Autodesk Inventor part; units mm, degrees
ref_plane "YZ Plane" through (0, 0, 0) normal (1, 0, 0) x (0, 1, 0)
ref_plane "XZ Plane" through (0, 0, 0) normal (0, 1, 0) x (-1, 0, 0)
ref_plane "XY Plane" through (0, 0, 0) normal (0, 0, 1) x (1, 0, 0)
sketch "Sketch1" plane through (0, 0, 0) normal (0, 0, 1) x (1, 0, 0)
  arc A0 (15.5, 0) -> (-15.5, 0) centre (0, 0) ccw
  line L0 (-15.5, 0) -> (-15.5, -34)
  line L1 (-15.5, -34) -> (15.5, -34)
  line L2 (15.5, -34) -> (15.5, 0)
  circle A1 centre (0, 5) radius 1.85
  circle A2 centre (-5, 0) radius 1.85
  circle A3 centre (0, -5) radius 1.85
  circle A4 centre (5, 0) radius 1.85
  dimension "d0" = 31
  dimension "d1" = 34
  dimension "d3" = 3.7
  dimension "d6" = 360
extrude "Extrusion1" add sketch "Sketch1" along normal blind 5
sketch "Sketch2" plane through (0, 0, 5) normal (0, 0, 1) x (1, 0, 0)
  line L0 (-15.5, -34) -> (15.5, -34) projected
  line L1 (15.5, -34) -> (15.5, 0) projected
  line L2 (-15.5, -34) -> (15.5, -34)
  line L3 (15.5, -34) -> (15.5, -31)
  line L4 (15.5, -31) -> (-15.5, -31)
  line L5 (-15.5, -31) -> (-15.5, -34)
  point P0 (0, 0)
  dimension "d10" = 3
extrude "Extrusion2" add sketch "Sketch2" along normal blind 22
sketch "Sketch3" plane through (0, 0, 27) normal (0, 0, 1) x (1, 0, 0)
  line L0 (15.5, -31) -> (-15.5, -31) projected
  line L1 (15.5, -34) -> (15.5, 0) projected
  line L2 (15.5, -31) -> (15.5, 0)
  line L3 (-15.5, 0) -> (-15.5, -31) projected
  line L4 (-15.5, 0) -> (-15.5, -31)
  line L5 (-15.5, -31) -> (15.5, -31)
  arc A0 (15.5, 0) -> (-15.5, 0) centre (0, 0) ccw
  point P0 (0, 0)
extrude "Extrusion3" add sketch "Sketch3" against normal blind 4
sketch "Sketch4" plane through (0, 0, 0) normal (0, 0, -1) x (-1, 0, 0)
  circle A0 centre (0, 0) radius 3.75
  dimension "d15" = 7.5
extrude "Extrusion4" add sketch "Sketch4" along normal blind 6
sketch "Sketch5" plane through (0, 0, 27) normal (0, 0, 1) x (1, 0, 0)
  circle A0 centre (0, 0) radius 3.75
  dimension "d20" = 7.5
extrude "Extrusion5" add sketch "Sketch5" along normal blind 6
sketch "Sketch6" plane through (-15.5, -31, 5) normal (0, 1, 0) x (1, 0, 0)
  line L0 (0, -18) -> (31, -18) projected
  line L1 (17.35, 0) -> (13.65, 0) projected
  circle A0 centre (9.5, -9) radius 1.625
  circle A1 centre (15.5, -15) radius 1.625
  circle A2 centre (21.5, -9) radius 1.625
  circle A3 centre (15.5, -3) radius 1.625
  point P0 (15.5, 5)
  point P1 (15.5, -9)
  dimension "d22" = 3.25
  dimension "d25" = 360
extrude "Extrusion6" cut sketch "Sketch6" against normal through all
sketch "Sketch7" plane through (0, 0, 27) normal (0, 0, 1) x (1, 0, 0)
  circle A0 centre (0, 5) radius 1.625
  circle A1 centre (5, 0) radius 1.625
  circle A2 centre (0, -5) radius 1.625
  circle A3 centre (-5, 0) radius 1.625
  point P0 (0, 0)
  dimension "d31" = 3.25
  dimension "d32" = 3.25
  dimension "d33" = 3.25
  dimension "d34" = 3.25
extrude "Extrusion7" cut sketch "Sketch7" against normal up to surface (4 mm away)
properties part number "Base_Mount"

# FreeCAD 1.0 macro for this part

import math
import FreeCAD as App
import Part
import Sketcher
from FreeCAD import Vector


def add_polygon(sketch, points):
    """Adds a closed chain of lines whose ends are joined by coincident constraints."""
    first, n = sketch.GeometryCount, len(points)
    for a, b in zip(points, points[1:] + points[:1]):
        sketch.addGeometry(Part.LineSegment(App.Vector(*a, 0), App.Vector(*b, 0)), False)
    for i in range(n):
        sketch.addConstraint(Sketcher.Constraint("Coincident", first + i, 2, first + (i + 1) % n, 1))

doc = App.newDocument("Part")
params = doc.addObject("Spreadsheet::Sheet", "Params")
for row, (alias, value) in enumerate([
    ("sketch1_diameter", "3.7 mm"),
    ("sketch1_radius", "15.5 mm"),
    ("sketch1_height", "34 mm"),
    ("pad1_length", "5 mm"),
    ("sketch2_height", "3 mm"),
    ("sketch2_width", "31 mm"),
    ("pad2_length", "22 mm"),
    ("sketch3_radius", "15.5 mm"),
    ("pad3_length", "4 mm"),
    ("sketch4_diameter", "7.5 mm"),
    ("pad4_length", "6 mm"),
    ("sketch5_diameter", "7.5 mm"),
    ("pad5_length", "6 mm"),
    ("sketch6_diameter", "3.25 mm"),
    ("sketch7_diameter", "3.25 mm"),
    ("pocket2_length", "4 mm"),
], start=1):
    params.set(f"A{row}", alias)
    params.set(f"B{row}", "=" + value)
    params.setAlias(f"B{row}", alias)

body = doc.addObject("PartDesign::Body", "Body")

# Sketch on XY plane
sketch1 = body.newObject("Sketcher::SketchObject", "Sketch")
sketch1.AttachmentSupport = (doc.getObject("XY_Plane"), [""])
sketch1.MapMode = "FlatFace"
sketch1.addGeometry([
    Part.LineSegment(Vector(15.5, -34, 0), Vector(15.5, 0, 0)),  # 0
    Part.ArcOfCircle(Part.Circle(Vector(0, 0, 0), Vector(0, 0, 1), 15.5), math.radians(0), math.radians(180)),  # 1
    Part.LineSegment(Vector(-15.5, 0, 0), Vector(-15.5, -34, 0)),  # 2
    Part.LineSegment(Vector(-15.5, -34, 0), Vector(15.5, -34, 0)),  # 3
    Part.Circle(Vector(-5, 0, 0), Vector(0, 0, 1), 1.85),  # 4
    Part.Circle(Vector(0, -5, 0), Vector(0, 0, 1), 1.85),  # 5
    Part.Circle(Vector(5, 0, 0), Vector(0, 0, 1), 1.85),  # 6
    Part.Circle(Vector(0, 5, 0), Vector(0, 0, 1), 1.85),  # 7
], False)
sketch1.addConstraint([
    Sketcher.Constraint("Tangent", 0, 2, 1, 1),
    Sketcher.Constraint("Tangent", 1, 2, 2, 1),
    Sketcher.Constraint("Coincident", 2, 2, 3, 1),
    Sketcher.Constraint("Coincident", 3, 2, 0, 1),
    Sketcher.Constraint("Vertical", 0),
    Sketcher.Constraint("Vertical", 2),
    Sketcher.Constraint("Horizontal", 3),
    Sketcher.Constraint("Coincident", 1, 3, -1, 1),
    Sketcher.Constraint("Equal", 4, 5),
    Sketcher.Constraint("Equal", 5, 6),
    Sketcher.Constraint("Equal", 6, 7),
    Sketcher.Constraint("Symmetric", 4, 3, 6, 3, -1, 1),
    Sketcher.Constraint("Symmetric", 5, 3, 7, 3, -1, 1),
    Sketcher.Constraint("PointOnObject", 4, 3, -1),
    Sketcher.Constraint("PointOnObject", 5, 3, -2),
    Sketcher.Constraint("Diameter", 4, 3.7),
    Sketcher.Constraint("Radius", 1, 15.5),
    Sketcher.Constraint("DistanceY", 0, 1, 0, 2, 34.0),
    Sketcher.Constraint("DistanceX", 4, 3, -1, 1, 5.0),
    Sketcher.Constraint("DistanceY", 5, 3, -1, 1, 5.0),
])
sketch1.setExpression("Constraints[15]", "Params.sketch1_diameter")
sketch1.setExpression("Constraints[16]", "Params.sketch1_radius")
sketch1.setExpression("Constraints[17]", "Params.sketch1_height")
pad1 = body.newObject("PartDesign::Pad", "Pad")
pad1.Profile = sketch1
pad1.setExpression("Length", "Params.pad1_length")

# Sketch on XY plane
sketch2 = body.newObject("Sketcher::SketchObject", "Sketch001")
sketch2.AttachmentSupport = (doc.getObject("XY_Plane"), [""])
sketch2.MapMode = "FlatFace"
sketch2.AttachmentOffset = App.Placement(Vector(0, 0, 5), App.Rotation())
add_polygon(sketch2, [(-15.5, -31), (-15.5, -34), (15.5, -34), (15.5, -31)])  # lines 0-3
sketch2.addConstraint([
    Sketcher.Constraint("Vertical", 0),
    Sketcher.Constraint("Horizontal", 1),
    Sketcher.Constraint("Vertical", 2),
    Sketcher.Constraint("Horizontal", 3),
    Sketcher.Constraint("DistanceY", 0, 2, 0, 1, 3.0),
    Sketcher.Constraint("DistanceX", 1, 1, 1, 2, 31.0),
    Sketcher.Constraint("DistanceY", 0, 2, -1, 1, 34.0),
    Sketcher.Constraint("DistanceX", 0, 2, -1, 1, 15.5),
])
sketch2.setExpression("Constraints[8]", "Params.sketch2_height")
sketch2.setExpression("Constraints[9]", "Params.sketch2_width")
pad2 = body.newObject("PartDesign::Pad", "Pad001")
pad2.Profile = sketch2
pad2.setExpression("Length", "Params.pad2_length")

# Sketch on XY plane
sketch3 = body.newObject("Sketcher::SketchObject", "Sketch002")
sketch3.AttachmentSupport = (doc.getObject("XY_Plane"), [""])
sketch3.MapMode = "FlatFace"
sketch3.AttachmentOffset = App.Placement(Vector(0, 0, 27), App.Rotation())
sketch3.addGeometry([
    Part.LineSegment(Vector(-15.5, -31, 0), Vector(15.5, -31, 0)),
    Part.LineSegment(Vector(15.5, -31, 0), Vector(15.5, 0, 0)),
    Part.ArcOfCircle(Part.Circle(Vector(0, 0, 0), Vector(0, 0, 1), 15.5), math.radians(0), math.radians(180)),
    Part.LineSegment(Vector(-15.5, 0, 0), Vector(-15.5, -31, 0)),
], False)
sketch3.addConstraint([
    Sketcher.Constraint("Coincident", 0, 2, 1, 1),
    Sketcher.Constraint("Tangent", 1, 2, 2, 1),
    Sketcher.Constraint("Tangent", 2, 2, 3, 1),
    Sketcher.Constraint("Coincident", 3, 2, 0, 1),
    Sketcher.Constraint("Horizontal", 0),
    Sketcher.Constraint("Vertical", 1),
    Sketcher.Constraint("Vertical", 3),
    Sketcher.Constraint("Coincident", 2, 3, -1, 1),
    Sketcher.Constraint("Equal", 0, 1),
    Sketcher.Constraint("Radius", 2, 15.5),
])
sketch3.setExpression("Constraints[9]", "Params.sketch3_radius")
pad3 = body.newObject("PartDesign::Pad", "Pad002")
pad3.Profile = sketch3
pad3.setExpression("Length", "Params.pad3_length")
pad3.Reversed = True

# Sketch on XY plane
sketch4 = body.newObject("Sketcher::SketchObject", "Sketch003")
sketch4.AttachmentSupport = (doc.getObject("XY_Plane"), [""])
sketch4.MapMode = "FlatFace"
sketch4.addGeometry(Part.Circle(Vector(0, 0, 0), Vector(0, 0, 1), 3.75), False)
sketch4.addConstraint([
    Sketcher.Constraint("Coincident", 0, 3, -1, 1),
    Sketcher.Constraint("Diameter", 0, 7.5),
])
sketch4.setExpression("Constraints[1]", "Params.sketch4_diameter")
pad4 = body.newObject("PartDesign::Pad", "Pad003")
pad4.Profile = sketch4
pad4.setExpression("Length", "Params.pad4_length")
pad4.Reversed = True

# Sketch on XY plane
sketch5 = body.newObject("Sketcher::SketchObject", "Sketch004")
sketch5.AttachmentSupport = (doc.getObject("XY_Plane"), [""])
sketch5.MapMode = "FlatFace"
sketch5.AttachmentOffset = App.Placement(Vector(0, 0, 27), App.Rotation())
sketch5.addGeometry(Part.Circle(Vector(0, 0, 0), Vector(0, 0, 1), 3.75), False)
sketch5.addConstraint([
    Sketcher.Constraint("Coincident", 0, 3, -1, 1),
    Sketcher.Constraint("Diameter", 0, 7.5),
])
sketch5.setExpression("Constraints[1]", "Params.sketch5_diameter")
pad5 = body.newObject("PartDesign::Pad", "Pad004")
pad5.Profile = sketch5
pad5.setExpression("Length", "Params.pad5_length")

# Sketch on XZ plane
sketch6 = body.newObject("Sketcher::SketchObject", "Sketch005")
sketch6.AttachmentSupport = (doc.getObject("XZ_Plane"), [""])
sketch6.MapMode = "FlatFace"
sketch6.AttachmentOffset = App.Placement(Vector(0, 0, 31), App.Rotation())
sketch6.addGeometry([
    Part.Circle(Vector(-6, 14, 0), Vector(0, 0, 1), 1.625),
    Part.Circle(Vector(0, 20, 0), Vector(0, 0, 1), 1.625),
    Part.Circle(Vector(6, 14, 0), Vector(0, 0, 1), 1.625),
    Part.Circle(Vector(0, 8, 0), Vector(0, 0, 1), 1.625),
], False)
sketch6.addConstraint([
    Sketcher.Constraint("Equal", 0, 1),
    Sketcher.Constraint("Equal", 1, 2),
    Sketcher.Constraint("Equal", 2, 3),
    Sketcher.Constraint("Symmetric", 0, 3, 2, 3, -2),
    Sketcher.Constraint("PointOnObject", 1, 3, -2),
    Sketcher.Constraint("PointOnObject", 3, 3, -2),
    Sketcher.Constraint("Diameter", 0, 3.25),
    Sketcher.Constraint("DistanceX", 0, 3, -1, 1, 6.0),
    Sketcher.Constraint("DistanceY", -1, 1, 0, 3, 14.0),
    Sketcher.Constraint("DistanceY", -1, 1, 1, 3, 20.0),
    Sketcher.Constraint("DistanceY", -1, 1, 3, 3, 8.0),
])
sketch6.setExpression("Constraints[6]", "Params.sketch6_diameter")
pocket1 = body.newObject("PartDesign::Pocket", "Pocket")
pocket1.Profile = sketch6
pocket1.Type = "ThroughAll"
pocket1.Reversed = True

# Sketch on XY plane
sketch7 = body.newObject("Sketcher::SketchObject", "Sketch006")
sketch7.AttachmentSupport = (doc.getObject("XY_Plane"), [""])
sketch7.MapMode = "FlatFace"
sketch7.AttachmentOffset = App.Placement(Vector(0, 0, 27), App.Rotation())
sketch7.addGeometry([
    Part.Circle(Vector(0, 5, 0), Vector(0, 0, 1), 1.625),
    Part.Circle(Vector(5, 0, 0), Vector(0, 0, 1), 1.625),
    Part.Circle(Vector(0, -5, 0), Vector(0, 0, 1), 1.625),
    Part.Circle(Vector(-5, 0, 0), Vector(0, 0, 1), 1.625),
], False)
sketch7.addConstraint([
    Sketcher.Constraint("Equal", 0, 1),
    Sketcher.Constraint("Equal", 1, 2),
    Sketcher.Constraint("Equal", 2, 3),
    Sketcher.Constraint("Symmetric", 0, 3, 2, 3, -1, 1),
    Sketcher.Constraint("Symmetric", 1, 3, 3, 3, -1, 1),
    Sketcher.Constraint("PointOnObject", 0, 3, -2),
    Sketcher.Constraint("PointOnObject", 1, 3, -1),
    Sketcher.Constraint("Diameter", 0, 3.25),
    Sketcher.Constraint("DistanceY", -1, 1, 0, 3, 5.0),
    Sketcher.Constraint("DistanceX", -1, 1, 1, 3, 5.0),
])
sketch7.setExpression("Constraints[7]", "Params.sketch7_diameter")
pocket2 = body.newObject("PartDesign::Pocket", "Pocket001")
pocket2.Profile = sketch7
pocket2.setExpression("Length", "Params.pocket2_length")

doc.recompute()
